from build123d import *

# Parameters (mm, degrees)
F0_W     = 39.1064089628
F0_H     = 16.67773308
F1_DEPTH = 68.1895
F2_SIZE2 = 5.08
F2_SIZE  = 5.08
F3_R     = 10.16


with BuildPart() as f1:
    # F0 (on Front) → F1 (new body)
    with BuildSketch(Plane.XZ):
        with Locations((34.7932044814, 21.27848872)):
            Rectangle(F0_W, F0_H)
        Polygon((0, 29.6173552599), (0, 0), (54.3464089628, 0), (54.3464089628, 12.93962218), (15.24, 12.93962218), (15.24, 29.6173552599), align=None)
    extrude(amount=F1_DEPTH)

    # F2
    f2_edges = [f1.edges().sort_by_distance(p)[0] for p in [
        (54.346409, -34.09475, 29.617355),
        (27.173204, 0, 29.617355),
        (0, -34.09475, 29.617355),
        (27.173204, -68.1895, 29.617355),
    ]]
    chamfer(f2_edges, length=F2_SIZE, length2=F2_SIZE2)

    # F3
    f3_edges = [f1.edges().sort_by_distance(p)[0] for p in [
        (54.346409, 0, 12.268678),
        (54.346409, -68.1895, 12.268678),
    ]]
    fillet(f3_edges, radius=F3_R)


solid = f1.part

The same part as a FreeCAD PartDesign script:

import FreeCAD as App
import Part
import Sketcher
Q = App.Units.Quantity


def edges_at(feature, points):
    """Names of the edges that pass closest to the given points."""
    edges = feature.Shape.Edges
    near = lambda p: min(range(len(edges)), key=lambda i: edges[i].distToShape(Part.Vertex(*p))[0])
    return sorted({f"Edge{near(p) + 1}" for p in points})

doc = App.newDocument("Part")
body = doc.addObject("PartDesign::Body", "Body")

# Sketch on XZ plane
sketch1 = body.newObject("Sketcher::SketchObject", "Sketch")
sketch1.AttachmentSupport = (doc.getObject("XZ_Plane"), [""])
sketch1.MapMode = "FlatFace"
sketch1.addGeometry([
    Part.LineSegment(App.Vector(54.346409, 29.617355, 0), App.Vector(15.24, 29.617355, 0)),  # 0
    Part.LineSegment(App.Vector(15.24, 29.617355, 0), App.Vector(0, 29.617355, 0)),  # 1
    Part.LineSegment(App.Vector(0, 29.617355, 0), App.Vector(0, 0, 0)),  # 2
    Part.LineSegment(App.Vector(0, 0, 0), App.Vector(54.346409, 0, 0)),  # 3
    Part.LineSegment(App.Vector(54.346409, 0, 0), App.Vector(54.346409, 29.617355, 0)),  # 4
], False)
sketch1.addConstraint([
    Sketcher.Constraint("Coincident", 0, 2, 1, 1),
    Sketcher.Constraint("Coincident", 1, 2, 2, 1),
    Sketcher.Constraint("Coincident", 2, 2, 3, 1),
    Sketcher.Constraint("Coincident", 3, 2, 4, 1),
    Sketcher.Constraint("Coincident", 4, 2, 0, 1),
    Sketcher.Constraint("Horizontal", 0),
    Sketcher.Constraint("Horizontal", 1),
    Sketcher.Constraint("Vertical", 2),
    Sketcher.Constraint("Horizontal", 3),
    Sketcher.Constraint("Vertical", 4),
    Sketcher.Constraint("Coincident", 2, 2, -1, 1),
    Sketcher.Constraint("DistanceX", 1, 2, 1, 1, Q("0.6 in")),
    Sketcher.Constraint("DistanceX", 0, 2, 0, 1, 39.106409),
    Sketcher.Constraint("DistanceY", 2, 2, 2, 1, 29.617355),
])
pad1 = body.newObject("PartDesign::Pad", "Pad")
pad1.Profile = sketch1
pad1.Length = 68.1895
doc.recompute()

chamfer = body.newObject("PartDesign::Chamfer", "Chamfer")
chamfer.Base = (pad1, edges_at(pad1, [
    (54.346, -34.095, 29.617),
    (34.793, 0, 29.617),
    (0, -34.095, 29.617),
    (34.793, -68.189, 29.617),
]))
chamfer.ChamferType = "Two distances"
chamfer.Size = Q("0.2 in")
chamfer.Size2 = Q("0.2 in")
doc.recompute()

fillet = body.newObject("PartDesign::Fillet", "Fillet")
fillet.Base = (chamfer, edges_at(chamfer, [(54.346, 0, 12.269), (54.346, -68.189, 12.269)]))
fillet.Radius = Q("0.4 in")

doc.recompute()
